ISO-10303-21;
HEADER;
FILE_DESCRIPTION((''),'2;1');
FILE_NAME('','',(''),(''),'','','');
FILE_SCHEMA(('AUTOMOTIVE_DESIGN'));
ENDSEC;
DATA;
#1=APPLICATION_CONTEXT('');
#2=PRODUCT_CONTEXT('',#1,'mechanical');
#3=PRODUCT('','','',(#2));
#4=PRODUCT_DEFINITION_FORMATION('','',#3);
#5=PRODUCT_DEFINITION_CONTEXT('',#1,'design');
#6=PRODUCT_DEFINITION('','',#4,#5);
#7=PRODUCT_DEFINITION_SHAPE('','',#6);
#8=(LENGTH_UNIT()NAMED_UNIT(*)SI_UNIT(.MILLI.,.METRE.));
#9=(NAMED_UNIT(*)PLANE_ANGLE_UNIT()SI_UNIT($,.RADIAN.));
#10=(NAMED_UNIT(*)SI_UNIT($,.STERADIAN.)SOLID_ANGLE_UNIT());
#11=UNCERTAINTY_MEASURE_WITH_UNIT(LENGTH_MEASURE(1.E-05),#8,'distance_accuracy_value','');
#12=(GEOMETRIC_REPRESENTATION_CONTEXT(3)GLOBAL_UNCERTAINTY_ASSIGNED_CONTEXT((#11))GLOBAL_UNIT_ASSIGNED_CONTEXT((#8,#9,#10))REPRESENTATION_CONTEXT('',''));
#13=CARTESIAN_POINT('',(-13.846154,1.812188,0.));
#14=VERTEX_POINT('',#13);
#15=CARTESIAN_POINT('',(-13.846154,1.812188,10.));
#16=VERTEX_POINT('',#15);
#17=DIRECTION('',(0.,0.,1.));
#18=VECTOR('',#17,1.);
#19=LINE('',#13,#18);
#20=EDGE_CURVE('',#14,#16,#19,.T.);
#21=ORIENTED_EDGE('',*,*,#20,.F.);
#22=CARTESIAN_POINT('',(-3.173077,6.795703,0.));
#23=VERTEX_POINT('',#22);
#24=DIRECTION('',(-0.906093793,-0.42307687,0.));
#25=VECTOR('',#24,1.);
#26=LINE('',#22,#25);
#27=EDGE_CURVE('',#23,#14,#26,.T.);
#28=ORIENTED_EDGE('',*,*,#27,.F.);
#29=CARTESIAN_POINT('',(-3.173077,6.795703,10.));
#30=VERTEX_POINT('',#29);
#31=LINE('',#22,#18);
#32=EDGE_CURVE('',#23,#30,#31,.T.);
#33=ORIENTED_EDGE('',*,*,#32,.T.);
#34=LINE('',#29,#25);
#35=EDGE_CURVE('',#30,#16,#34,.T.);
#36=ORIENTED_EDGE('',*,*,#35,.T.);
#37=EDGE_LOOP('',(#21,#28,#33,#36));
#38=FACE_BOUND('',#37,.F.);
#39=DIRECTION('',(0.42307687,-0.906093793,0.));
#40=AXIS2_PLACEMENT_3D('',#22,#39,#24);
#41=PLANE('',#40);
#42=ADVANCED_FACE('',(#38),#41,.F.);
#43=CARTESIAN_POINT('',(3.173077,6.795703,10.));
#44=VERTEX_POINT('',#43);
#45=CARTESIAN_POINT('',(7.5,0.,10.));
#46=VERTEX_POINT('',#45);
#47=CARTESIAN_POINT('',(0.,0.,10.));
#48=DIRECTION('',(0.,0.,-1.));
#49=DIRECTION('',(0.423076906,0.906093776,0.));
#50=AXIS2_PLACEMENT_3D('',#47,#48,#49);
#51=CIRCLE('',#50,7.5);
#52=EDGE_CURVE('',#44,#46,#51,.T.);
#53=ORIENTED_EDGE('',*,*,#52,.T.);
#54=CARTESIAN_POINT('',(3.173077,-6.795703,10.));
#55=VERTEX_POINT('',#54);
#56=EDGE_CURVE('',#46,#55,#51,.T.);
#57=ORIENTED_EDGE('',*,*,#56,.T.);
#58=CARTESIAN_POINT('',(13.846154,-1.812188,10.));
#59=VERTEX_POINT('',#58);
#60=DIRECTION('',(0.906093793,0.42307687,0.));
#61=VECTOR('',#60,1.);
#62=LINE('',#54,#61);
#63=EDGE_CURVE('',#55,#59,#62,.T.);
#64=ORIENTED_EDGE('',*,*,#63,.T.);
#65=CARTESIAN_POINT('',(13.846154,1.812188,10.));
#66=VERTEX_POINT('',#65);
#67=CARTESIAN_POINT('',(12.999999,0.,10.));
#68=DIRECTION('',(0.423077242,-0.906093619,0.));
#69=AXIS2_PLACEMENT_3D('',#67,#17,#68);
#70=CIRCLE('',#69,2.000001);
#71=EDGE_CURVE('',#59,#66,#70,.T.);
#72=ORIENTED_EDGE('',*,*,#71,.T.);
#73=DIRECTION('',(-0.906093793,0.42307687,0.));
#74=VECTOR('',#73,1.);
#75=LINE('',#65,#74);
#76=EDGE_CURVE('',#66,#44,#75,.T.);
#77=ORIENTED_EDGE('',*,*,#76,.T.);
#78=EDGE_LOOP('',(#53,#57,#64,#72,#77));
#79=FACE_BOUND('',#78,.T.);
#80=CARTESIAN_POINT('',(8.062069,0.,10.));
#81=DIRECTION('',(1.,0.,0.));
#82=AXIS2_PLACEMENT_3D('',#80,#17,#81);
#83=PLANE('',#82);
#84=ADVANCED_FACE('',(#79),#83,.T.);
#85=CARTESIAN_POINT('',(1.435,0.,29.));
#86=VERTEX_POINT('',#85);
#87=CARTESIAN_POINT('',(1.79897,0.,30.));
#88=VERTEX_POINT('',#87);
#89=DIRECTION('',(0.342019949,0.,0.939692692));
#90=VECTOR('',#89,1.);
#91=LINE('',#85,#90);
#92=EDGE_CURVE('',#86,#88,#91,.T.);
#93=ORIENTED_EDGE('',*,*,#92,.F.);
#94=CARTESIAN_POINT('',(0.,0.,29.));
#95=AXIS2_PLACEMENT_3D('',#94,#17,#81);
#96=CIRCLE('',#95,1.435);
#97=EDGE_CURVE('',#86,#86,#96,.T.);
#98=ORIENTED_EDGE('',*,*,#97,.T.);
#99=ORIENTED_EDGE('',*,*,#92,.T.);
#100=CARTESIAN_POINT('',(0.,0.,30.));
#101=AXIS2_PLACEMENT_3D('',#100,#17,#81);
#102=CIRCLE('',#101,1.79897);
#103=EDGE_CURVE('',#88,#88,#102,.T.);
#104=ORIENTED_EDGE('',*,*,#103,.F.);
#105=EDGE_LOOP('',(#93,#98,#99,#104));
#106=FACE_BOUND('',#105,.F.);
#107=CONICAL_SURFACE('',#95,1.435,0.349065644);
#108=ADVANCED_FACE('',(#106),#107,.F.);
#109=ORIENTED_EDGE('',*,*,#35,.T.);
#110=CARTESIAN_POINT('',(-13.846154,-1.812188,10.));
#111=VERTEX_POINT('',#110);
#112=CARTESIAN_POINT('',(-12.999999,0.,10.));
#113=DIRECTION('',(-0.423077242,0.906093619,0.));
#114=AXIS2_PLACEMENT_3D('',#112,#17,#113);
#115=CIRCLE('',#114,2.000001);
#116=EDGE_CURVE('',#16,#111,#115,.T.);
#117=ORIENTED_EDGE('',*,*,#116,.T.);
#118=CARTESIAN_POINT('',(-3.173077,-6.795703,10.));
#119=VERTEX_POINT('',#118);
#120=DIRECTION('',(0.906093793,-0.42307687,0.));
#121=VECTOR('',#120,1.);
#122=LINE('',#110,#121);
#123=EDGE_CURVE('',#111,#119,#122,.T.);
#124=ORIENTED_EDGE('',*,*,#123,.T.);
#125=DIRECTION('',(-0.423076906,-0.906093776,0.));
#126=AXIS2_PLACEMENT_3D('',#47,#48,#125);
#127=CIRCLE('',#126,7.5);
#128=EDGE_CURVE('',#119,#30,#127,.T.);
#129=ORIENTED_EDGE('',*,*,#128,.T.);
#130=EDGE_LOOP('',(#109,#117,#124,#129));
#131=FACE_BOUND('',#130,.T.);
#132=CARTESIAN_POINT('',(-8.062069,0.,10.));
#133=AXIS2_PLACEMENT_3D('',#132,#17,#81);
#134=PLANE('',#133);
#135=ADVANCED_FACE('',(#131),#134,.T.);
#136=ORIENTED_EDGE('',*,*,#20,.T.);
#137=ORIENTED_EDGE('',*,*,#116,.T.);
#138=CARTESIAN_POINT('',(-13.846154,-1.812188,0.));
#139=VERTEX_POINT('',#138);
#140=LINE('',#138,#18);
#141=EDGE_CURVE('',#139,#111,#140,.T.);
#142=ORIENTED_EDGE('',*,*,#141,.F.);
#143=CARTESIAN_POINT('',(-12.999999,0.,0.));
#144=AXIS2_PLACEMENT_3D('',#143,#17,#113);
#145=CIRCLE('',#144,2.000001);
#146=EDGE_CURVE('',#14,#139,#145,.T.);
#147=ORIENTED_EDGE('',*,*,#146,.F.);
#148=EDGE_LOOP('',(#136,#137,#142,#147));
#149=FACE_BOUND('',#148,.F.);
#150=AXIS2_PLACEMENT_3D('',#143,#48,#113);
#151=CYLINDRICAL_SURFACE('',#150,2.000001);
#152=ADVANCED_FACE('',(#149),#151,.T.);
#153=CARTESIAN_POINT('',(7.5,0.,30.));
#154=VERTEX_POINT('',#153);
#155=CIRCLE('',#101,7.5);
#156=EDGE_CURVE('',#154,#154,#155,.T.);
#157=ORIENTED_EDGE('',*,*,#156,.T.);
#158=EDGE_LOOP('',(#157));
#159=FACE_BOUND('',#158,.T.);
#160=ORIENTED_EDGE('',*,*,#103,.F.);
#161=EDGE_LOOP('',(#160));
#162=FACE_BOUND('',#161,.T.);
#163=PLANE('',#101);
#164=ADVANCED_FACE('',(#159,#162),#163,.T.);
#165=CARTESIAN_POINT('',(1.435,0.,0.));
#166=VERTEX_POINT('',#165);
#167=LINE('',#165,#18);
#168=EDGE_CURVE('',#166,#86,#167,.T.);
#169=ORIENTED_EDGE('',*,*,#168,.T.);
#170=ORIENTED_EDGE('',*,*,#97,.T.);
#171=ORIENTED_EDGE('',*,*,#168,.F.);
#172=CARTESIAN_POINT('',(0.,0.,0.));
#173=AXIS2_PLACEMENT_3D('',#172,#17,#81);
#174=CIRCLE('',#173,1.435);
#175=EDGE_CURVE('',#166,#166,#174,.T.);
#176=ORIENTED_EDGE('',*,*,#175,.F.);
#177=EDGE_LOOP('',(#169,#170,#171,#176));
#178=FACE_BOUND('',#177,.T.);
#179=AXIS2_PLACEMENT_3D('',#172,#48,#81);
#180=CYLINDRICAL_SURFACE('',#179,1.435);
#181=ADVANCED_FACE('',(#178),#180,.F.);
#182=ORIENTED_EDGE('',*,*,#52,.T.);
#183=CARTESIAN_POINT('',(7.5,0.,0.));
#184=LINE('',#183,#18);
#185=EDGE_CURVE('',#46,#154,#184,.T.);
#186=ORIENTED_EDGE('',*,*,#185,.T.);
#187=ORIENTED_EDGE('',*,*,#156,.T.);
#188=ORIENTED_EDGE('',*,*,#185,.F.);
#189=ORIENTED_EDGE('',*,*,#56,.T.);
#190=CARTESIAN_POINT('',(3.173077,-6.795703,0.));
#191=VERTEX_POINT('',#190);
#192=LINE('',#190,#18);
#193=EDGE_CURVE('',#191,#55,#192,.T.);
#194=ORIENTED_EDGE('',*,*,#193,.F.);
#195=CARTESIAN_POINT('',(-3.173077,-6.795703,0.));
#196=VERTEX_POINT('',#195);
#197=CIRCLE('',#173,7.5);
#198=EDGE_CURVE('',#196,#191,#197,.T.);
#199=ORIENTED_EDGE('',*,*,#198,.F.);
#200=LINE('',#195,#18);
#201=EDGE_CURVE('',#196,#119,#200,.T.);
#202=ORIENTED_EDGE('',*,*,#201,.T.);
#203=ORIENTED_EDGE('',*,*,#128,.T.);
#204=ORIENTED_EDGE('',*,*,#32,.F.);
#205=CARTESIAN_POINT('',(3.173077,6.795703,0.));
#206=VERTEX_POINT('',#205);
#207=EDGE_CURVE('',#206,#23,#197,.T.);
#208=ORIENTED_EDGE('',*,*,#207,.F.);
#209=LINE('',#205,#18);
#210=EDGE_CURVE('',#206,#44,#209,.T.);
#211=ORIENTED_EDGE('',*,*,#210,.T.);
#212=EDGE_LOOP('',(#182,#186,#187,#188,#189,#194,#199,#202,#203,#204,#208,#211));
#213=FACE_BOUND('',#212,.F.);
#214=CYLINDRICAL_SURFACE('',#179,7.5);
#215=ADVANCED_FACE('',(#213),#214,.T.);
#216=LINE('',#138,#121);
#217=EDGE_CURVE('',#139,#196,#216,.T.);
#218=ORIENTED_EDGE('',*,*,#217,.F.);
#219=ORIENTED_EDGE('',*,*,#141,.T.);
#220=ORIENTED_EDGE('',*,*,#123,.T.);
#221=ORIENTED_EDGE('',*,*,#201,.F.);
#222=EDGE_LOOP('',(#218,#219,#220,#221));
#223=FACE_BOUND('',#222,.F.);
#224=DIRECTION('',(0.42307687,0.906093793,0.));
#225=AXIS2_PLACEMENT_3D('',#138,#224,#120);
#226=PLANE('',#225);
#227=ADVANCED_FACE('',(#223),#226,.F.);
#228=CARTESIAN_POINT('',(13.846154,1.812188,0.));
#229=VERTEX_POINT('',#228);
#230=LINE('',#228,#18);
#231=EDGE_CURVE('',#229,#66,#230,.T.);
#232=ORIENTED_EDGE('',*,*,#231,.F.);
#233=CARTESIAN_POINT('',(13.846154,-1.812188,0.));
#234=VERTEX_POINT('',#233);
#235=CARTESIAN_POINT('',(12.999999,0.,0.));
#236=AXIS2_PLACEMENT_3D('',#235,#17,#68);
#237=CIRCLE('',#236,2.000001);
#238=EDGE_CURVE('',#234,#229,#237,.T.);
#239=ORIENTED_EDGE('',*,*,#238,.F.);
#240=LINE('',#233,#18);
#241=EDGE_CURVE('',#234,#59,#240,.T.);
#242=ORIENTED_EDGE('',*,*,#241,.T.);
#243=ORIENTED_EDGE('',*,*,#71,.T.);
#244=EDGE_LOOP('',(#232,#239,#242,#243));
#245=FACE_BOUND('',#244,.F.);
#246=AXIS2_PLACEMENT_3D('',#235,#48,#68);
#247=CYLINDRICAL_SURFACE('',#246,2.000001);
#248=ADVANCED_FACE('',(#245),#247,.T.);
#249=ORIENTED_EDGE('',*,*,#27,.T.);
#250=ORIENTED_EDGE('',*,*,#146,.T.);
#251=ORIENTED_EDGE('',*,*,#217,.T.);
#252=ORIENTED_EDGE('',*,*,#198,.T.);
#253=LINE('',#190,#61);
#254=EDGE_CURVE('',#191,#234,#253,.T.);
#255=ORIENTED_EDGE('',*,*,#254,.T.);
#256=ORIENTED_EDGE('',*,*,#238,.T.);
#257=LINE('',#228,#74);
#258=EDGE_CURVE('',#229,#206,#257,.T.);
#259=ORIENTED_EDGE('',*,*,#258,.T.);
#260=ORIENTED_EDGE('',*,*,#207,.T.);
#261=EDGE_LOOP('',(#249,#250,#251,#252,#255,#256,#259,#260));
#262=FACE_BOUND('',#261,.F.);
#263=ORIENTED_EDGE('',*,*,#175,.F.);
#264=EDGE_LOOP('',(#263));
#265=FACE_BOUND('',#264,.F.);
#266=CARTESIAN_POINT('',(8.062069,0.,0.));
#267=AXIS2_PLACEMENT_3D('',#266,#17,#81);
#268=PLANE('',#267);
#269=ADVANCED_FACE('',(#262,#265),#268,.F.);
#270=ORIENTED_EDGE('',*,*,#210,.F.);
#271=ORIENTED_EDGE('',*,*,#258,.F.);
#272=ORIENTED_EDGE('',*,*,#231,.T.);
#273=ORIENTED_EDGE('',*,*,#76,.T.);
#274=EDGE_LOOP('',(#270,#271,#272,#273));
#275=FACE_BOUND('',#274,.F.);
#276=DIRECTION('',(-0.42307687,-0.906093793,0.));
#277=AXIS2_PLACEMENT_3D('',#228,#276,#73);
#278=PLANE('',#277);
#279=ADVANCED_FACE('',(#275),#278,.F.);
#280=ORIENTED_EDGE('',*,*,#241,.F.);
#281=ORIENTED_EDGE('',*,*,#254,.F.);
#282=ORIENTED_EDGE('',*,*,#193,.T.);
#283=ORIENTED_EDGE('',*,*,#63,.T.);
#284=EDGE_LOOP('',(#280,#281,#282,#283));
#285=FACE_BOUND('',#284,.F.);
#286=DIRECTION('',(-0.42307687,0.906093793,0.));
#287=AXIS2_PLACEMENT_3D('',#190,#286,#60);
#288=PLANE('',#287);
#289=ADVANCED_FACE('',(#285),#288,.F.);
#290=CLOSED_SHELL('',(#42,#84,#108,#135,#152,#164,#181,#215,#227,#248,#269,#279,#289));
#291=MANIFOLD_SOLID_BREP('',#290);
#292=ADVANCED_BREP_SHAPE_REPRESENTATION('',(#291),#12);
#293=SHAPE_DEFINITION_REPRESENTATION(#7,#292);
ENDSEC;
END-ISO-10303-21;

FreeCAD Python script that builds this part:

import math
import FreeCAD as App
import Part
import Sketcher
from FreeCAD import Vector


def edges_at(feature, points):
    """Names of the edges that pass closest to the given points."""
    edges = feature.Shape.Edges
    near = lambda p: min(range(len(edges)), key=lambda i: edges[i].distToShape(Part.Vertex(*p))[0])
    return sorted({f"Edge{near(p) + 1}" for p in points})

doc = App.newDocument("Part")
body = doc.addObject("PartDesign::Body", "Body")

# Sketch on XY plane
sketch1 = body.newObject("Sketcher::SketchObject", "Sketch")
sketch1.AttachmentSupport = (doc.getObject("XY_Plane"), [""])
sketch1.MapMode = "FlatFace"
sketch1.addGeometry([
    Part.Circle(Vector(0, 0, 0), Vector(0, 0, 1), 7.5),
    Part.Circle(Vector(0, 0, 0), Vector(0, 0, 1), 1.435),
], False)
sketch1.addConstraint([
    Sketcher.Constraint("Coincident", 0, 3, -1, 1),
    Sketcher.Constraint("Coincident", 1, 3, -1, 1),
    Sketcher.Constraint("Diameter", 0, 15.0),
    Sketcher.Constraint("Diameter", 1, 2.87),
])
pad1 = body.newObject("PartDesign::Pad", "Pad")
pad1.Profile = sketch1
pad1.Length = 30
doc.recompute()

chamfer = body.newObject("PartDesign::Chamfer", "Chamfer")
chamfer.Base = (pad1, edges_at(pad1, [(-1.435, 0, 30)]))
chamfer.ChamferType = "Two distances"
chamfer.Size = 1
chamfer.Size2 = 0.36397

# Sketch on XY plane
sketch2 = body.newObject("Sketcher::SketchObject", "Sketch001")
sketch2.AttachmentSupport = (doc.getObject("XY_Plane"), [""])
sketch2.MapMode = "FlatFace"
sketch2.addGeometry([
    Part.ArcOfCircle(Part.Circle(Vector(0, 0, 0), Vector(0, 0, 1), 7.5), math.radians(115.028998), math.radians(244.971002)),  # 0
    Part.LineSegment(Vector(-3.173077, 6.795703, 0), Vector(-13.846154, 1.812188, 0)),  # 1
    Part.ArcOfCircle(Part.Circle(Vector(-12.999999, 0, 0), Vector(0, 0, 1), 2.000001), math.radians(115.02902), math.radians(244.97098)),  # 2
    Part.LineSegment(Vector(-13.846154, -1.812188, 0), Vector(-3.173077, -6.795703, 0)),  # 3
    Part.ArcOfCircle(Part.Circle(Vector(12.999999, 0, 0), Vector(0, 0, 1), 2.000001), math.radians(-64.97098), math.radians(64.97098)),  # 4
    Part.LineSegment(Vector(13.846154, 1.812188, 0), Vector(3.173077, 6.795703, 0)),  # 5
    Part.ArcOfCircle(Part.Circle(Vector(0, 0, 0), Vector(0, 0, 1), 7.5), math.radians(-64.971002), math.radians(64.971002)),  # 6
    Part.LineSegment(Vector(3.173077, -6.795703, 0), Vector(13.846154, -1.812188, 0)),  # 7
], False)
sketch2.addConstraint([
    Sketcher.Constraint("Tangent", 0, 1, 1, 1),
    Sketcher.Constraint("Tangent", 1, 2, 2, 1),
    Sketcher.Constraint("Tangent", 2, 2, 3, 1),
    Sketcher.Constraint("Tangent", 3, 2, 0, 2),
    Sketcher.Constraint("Tangent", 4, 2, 5, 1),
    Sketcher.Constraint("Tangent", 5, 2, 6, 2),
    Sketcher.Constraint("Tangent", 6, 1, 7, 1),
    Sketcher.Constraint("Tangent", 7, 2, 4, 1),
    Sketcher.Constraint("Coincident", 0, 3, -1, 1),
    Sketcher.Constraint("Coincident", 6, 3, -1, 1),
    Sketcher.Constraint("Equal", 2, 4),
    Sketcher.Constraint("Equal", 0, 6),
    Sketcher.Constraint("Symmetric", 2, 3, 4, 3, -1, 1),
    Sketcher.Constraint("PointOnObject", 2, 3, -1),
    Sketcher.Constraint("Radius", 2, 2.000001),
    Sketcher.Constraint("Radius", 0, 7.5),
    Sketcher.Constraint("DistanceX", 2, 3, -1, 1, 12.999999),
])
pad2 = body.newObject("PartDesign::Pad", "Pad001")
pad2.Profile = sketch2
pad2.Length = 10

doc.recompute()
